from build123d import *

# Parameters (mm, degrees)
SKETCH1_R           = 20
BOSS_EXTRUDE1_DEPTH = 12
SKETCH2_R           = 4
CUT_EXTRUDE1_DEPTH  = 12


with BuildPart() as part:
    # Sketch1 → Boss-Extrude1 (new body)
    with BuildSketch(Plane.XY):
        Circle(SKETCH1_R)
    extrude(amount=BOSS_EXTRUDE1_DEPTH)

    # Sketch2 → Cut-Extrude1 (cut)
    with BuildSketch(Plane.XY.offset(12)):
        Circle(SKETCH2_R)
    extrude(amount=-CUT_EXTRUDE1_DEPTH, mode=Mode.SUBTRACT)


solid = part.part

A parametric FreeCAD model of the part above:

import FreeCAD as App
import Part
import Sketcher

V = App.Vector
Q = App.Units.Quantity

doc = App.newDocument("Part")
body = doc.addObject("PartDesign::Body", "Body")

sketch1 = body.newObject("Sketcher::SketchObject", "Sketch")
sketch1.AttachmentSupport = (doc.getObject("XY_Plane"), [""])
sketch1.MapMode = "FlatFace"
sketch1.addGeometry(Part.Circle(V(0, 0, 0), V(0, 0, 1), 20), False)
sketch1.addConstraint(Sketcher.Constraint("Coincident", 0, 3, -1, 1))
sketch1.addConstraint(Sketcher.Constraint("Diameter", 0, Q("40 mm")))
pad1 = body.newObject("PartDesign::Pad", "Pad")
pad1.Profile = sketch1
pad1.Length = 12

sketch2 = body.newObject("Sketcher::SketchObject", "Sketch001")
sketch2.AttachmentSupport = (doc.getObject("XY_Plane"), [""])
sketch2.MapMode = "FlatFace"
sketch2.AttachmentOffset = App.Placement(V(0, 0, 12), App.Rotation())
sketch2.addGeometry(Part.Circle(V(0, 0, 0), V(0, 0, 1), 4), False)
sketch2.addConstraint(Sketcher.Constraint("Coincident", 0, 3, -1, 1))
sketch2.addConstraint(Sketcher.Constraint("Diameter", 0, Q("8 mm")))
pocket1 = body.newObject("PartDesign::Pocket", "Pocket")
pocket1.Profile = sketch2
pocket1.Length = 12

doc.recompute()
